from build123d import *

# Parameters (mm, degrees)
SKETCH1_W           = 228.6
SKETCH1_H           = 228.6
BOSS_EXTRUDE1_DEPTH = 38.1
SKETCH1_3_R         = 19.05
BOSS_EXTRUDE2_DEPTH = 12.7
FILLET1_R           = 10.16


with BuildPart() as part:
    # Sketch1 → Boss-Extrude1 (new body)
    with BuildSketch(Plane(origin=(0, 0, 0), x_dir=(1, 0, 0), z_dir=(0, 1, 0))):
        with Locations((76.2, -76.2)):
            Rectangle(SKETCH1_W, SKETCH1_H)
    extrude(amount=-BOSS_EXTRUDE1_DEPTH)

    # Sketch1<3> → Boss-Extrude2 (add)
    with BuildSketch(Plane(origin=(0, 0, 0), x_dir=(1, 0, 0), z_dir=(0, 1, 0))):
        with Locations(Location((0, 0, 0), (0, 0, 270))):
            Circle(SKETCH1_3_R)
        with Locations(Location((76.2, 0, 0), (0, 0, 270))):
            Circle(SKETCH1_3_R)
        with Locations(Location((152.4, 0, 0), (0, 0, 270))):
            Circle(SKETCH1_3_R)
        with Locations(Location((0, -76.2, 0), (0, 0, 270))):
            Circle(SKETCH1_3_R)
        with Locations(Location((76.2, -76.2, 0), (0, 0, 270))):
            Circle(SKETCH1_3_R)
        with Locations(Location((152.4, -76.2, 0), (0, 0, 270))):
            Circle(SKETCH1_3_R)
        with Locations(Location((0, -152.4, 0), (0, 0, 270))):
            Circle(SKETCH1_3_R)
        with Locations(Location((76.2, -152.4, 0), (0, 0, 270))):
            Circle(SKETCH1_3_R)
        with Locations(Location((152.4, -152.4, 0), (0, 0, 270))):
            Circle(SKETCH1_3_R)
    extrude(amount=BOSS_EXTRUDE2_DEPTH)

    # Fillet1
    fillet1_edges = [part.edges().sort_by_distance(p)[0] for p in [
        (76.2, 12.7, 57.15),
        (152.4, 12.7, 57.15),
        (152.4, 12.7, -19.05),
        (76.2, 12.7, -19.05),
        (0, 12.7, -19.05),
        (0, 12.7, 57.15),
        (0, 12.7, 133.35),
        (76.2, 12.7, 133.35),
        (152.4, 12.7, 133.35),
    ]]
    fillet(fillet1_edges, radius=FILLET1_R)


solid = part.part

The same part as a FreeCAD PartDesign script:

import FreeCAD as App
import Part
import Sketcher
from FreeCAD import Vector
Q = App.Units.Quantity


def edges_at(feature, points):
    """Names of the edges that pass closest to the given points."""
    edges = feature.Shape.Edges
    near = lambda p: min(range(len(edges)), key=lambda i: edges[i].distToShape(Part.Vertex(*p))[0])
    return sorted({f"Edge{near(p) + 1}" for p in points})

doc = App.newDocument("Part")
params = doc.addObject("Spreadsheet::Sheet", "Params")
for row, (alias, value) in enumerate([
    ("sketch1_width", "9 in"),
    ("pad1_length", "1.5 in"),
    ("sketch2_diameter", "1.5 in"),
    ("pad2_length", "0.5 in"),
    ("fillet_radius", "0.4 in"),
], start=1):
    params.set(f"A{row}", alias)
    params.set(f"B{row}", "=" + value)
    params.setAlias(f"B{row}", alias)

body = doc.addObject("PartDesign::Body", "Body")

# Sketch on XZ plane
sketch1 = doc.addObject("Sketcher::SketchObject", "Sketch")
body.addObject(sketch1)
sketch1.AttachmentSupport = (doc.XZ_Plane, [""])
sketch1.MapMode = "FlatFace"
sketch1.addGeometry([
    Part.LineSegment(Vector(-38.1, -38.1, 0), Vector(-38.1, 190.5, 0)),
    Part.LineSegment(Vector(-38.1, 190.5, 0), Vector(190.5, 190.5, 0)),
    Part.LineSegment(Vector(190.5, 190.5, 0), Vector(190.5, -38.1, 0)),
    Part.LineSegment(Vector(190.5, -38.1, 0), Vector(-38.1, -38.1, 0)),
], False)
sketch1.addConstraint([
    Sketcher.Constraint("Coincident", 0, 2, 1, 1),
    Sketcher.Constraint("Coincident", 1, 2, 2, 1),
    Sketcher.Constraint("Coincident", 2, 2, 3, 1),
    Sketcher.Constraint("Coincident", 3, 2, 0, 1),
    Sketcher.Constraint("Vertical", 0),
    Sketcher.Constraint("Horizontal", 1),
    Sketcher.Constraint("Vertical", 2),
    Sketcher.Constraint("Horizontal", 3),
    Sketcher.Constraint("Equal", 3, 0),
    Sketcher.Constraint("DistanceX", 1, 1, 1, 2, Q("9 in")),
    Sketcher.Constraint("DistanceX", 0, 2, -1, 1, Q("1.5 in")),
    Sketcher.Constraint("DistanceY", -1, 1, 0, 2, Q("7.5 in")),
])
sketch1.setExpression("Constraints[9]", "Params.sketch1_width")
pad1 = doc.addObject("PartDesign::Pad", "Pad")
body.addObject(pad1)
pad1.Profile = sketch1
pad1.setExpression("Length", "Params.pad1_length")

# Sketch on XZ plane
sketch2 = doc.addObject("Sketcher::SketchObject", "Sketch001")
body.addObject(sketch2)
sketch2.AttachmentSupport = (doc.XZ_Plane, [""])
sketch2.MapMode = "FlatFace"
sketch2.addGeometry([
    Part.Circle(Vector(0, 0, 0), Vector(0, 0, 1), 19.05),  # 0
    Part.Circle(Vector(76.2, 0, 0), Vector(0, 0, 1), 19.05),  # 1
    Part.Circle(Vector(152.4, 0, 0), Vector(0, 0, 1), 19.05),  # 2
    Part.Circle(Vector(0, 76.2, 0), Vector(0, 0, 1), 19.05),  # 3
    Part.Circle(Vector(76.2, 76.2, 0), Vector(0, 0, 1), 19.05),  # 4
    Part.Circle(Vector(152.4, 76.2, 0), Vector(0, 0, 1), 19.05),  # 5
    Part.Circle(Vector(0, 152.4, 0), Vector(0, 0, 1), 19.05),  # 6
    Part.Circle(Vector(76.2, 152.4, 0), Vector(0, 0, 1), 19.05),  # 7
    Part.Circle(Vector(152.4, 152.4, 0), Vector(0, 0, 1), 19.05),  # 8
], False)
sketch2.addConstraint([
    Sketcher.Constraint("Coincident", 0, 3, -1, 1),
    Sketcher.Constraint("Equal", 0, 1),
    Sketcher.Constraint("Equal", 1, 2),
    Sketcher.Constraint("Equal", 2, 3),
    Sketcher.Constraint("Equal", 3, 4),
    Sketcher.Constraint("Equal", 4, 5),
    Sketcher.Constraint("Equal", 5, 6),
    Sketcher.Constraint("Equal", 6, 7),
    Sketcher.Constraint("Equal", 7, 8),
    Sketcher.Constraint("PointOnObject", 1, 3, -1),
    Sketcher.Constraint("PointOnObject", 2, 3, -1),
    Sketcher.Constraint("PointOnObject", 3, 3, -2),
    Sketcher.Constraint("PointOnObject", 6, 3, -2),
    Sketcher.Constraint("Horizontal", 3, 3, 4, 3),
    Sketcher.Constraint("Horizontal", 4, 3, 5, 3),
    Sketcher.Constraint("Horizontal", 6, 3, 7, 3),
    Sketcher.Constraint("Horizontal", 7, 3, 8, 3),
    Sketcher.Constraint("Vertical", 1, 3, 4, 3),
    Sketcher.Constraint("Vertical", 2, 3, 5, 3),
    Sketcher.Constraint("Vertical", 4, 3, 7, 3),
    Sketcher.Constraint("Vertical", 5, 3, 8, 3),
    Sketcher.Constraint("Diameter", 0, Q("1.5 in")),
    Sketcher.Constraint("DistanceX", -1, 1, 1, 3, Q("3 in")),
    Sketcher.Constraint("DistanceX", -1, 1, 2, 3, Q("6 in")),
    Sketcher.Constraint("DistanceY", -1, 1, 3, 3, Q("3 in")),
    Sketcher.Constraint("DistanceY", -1, 1, 6, 3, Q("6 in")),
])
sketch2.setExpression("Constraints[21]", "Params.sketch2_diameter")
pad2 = doc.addObject("PartDesign::Pad", "Pad001")
body.addObject(pad2)
pad2.Profile = sketch2
pad2.setExpression("Length", "Params.pad2_length")
pad2.Reversed = True
doc.recompute()

fillet = doc.addObject("PartDesign::Fillet", "Fillet")
body.addObject(fillet)
fillet.Base = (pad2, edges_at(pad2, [
    (76.2, 12.7, 57.15),
    (152.4, 12.7, 57.15),
    (152.4, 12.7, -19.05),
    (76.2, 12.7, -19.05),
    (0, 12.7, -19.05),
    (0, 12.7, 57.15),
    (0, 12.7, 133.35),
    (76.2, 12.7, 133.35),
    (152.4, 12.7, 133.35),
]))
fillet.setExpression("Radius", "Params.fillet_radius")

doc.recompute()
